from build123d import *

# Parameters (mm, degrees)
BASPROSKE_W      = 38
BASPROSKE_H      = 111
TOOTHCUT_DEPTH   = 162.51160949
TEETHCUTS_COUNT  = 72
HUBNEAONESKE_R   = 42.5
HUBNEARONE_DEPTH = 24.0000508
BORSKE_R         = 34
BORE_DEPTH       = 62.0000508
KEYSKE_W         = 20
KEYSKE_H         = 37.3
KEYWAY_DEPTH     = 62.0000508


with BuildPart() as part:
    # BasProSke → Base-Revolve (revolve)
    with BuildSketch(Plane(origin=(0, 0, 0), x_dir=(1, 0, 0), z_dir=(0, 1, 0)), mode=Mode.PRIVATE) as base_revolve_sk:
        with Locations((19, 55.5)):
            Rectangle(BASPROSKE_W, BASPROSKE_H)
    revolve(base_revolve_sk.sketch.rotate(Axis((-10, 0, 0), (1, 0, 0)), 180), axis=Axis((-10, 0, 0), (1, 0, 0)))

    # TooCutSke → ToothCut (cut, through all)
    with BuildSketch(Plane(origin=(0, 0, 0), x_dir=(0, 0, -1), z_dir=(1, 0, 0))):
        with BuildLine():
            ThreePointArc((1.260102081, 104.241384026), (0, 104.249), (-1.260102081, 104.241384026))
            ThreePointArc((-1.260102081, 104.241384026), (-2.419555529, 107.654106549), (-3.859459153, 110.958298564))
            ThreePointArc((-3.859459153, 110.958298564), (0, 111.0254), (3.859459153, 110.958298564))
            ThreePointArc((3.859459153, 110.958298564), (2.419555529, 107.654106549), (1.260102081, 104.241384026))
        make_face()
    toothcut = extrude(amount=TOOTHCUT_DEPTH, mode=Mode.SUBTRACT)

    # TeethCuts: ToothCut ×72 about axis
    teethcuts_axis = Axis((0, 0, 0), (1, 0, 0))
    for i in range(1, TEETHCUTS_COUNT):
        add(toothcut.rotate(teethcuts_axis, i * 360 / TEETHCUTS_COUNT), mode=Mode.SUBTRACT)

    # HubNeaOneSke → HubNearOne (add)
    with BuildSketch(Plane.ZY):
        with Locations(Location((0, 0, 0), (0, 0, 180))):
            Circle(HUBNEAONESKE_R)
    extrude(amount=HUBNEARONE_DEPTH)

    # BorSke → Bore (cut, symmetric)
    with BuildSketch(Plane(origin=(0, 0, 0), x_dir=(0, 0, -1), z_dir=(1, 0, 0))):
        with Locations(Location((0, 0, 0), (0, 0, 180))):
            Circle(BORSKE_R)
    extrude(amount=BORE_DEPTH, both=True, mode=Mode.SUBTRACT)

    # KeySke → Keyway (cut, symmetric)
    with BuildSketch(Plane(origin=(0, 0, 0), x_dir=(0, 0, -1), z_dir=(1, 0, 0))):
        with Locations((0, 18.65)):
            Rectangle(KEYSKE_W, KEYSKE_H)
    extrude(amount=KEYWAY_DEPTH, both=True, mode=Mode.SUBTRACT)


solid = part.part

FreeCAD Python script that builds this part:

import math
import FreeCAD as App
import Part
import Sketcher
from FreeCAD import Vector

doc = App.newDocument("Part")
body = doc.addObject("PartDesign::Body", "Body")

# Sketch on XZ plane
sketch1 = body.newObject("Sketcher::SketchObject", "Sketch")
sketch1.AttachmentSupport = (doc.getObject("XZ_Plane"), [""])
sketch1.MapMode = "FlatFace"
sketch1.addGeometry(Part.LineSegment(Vector(0, -111, 0), Vector(0, 0, 0)), False)
sketch1.addGeometry(Part.LineSegment(Vector(0, 0, 0), Vector(38, 0, 0)), False)
sketch1.addGeometry(Part.LineSegment(Vector(38, 0, 0), Vector(38, -111, 0)), False)
sketch1.addGeometry(Part.LineSegment(Vector(38, -111, 0), Vector(0, -111, 0)), False)
sketch1.addConstraint(Sketcher.Constraint("Coincident", 0, 2, 1, 1))
sketch1.addConstraint(Sketcher.Constraint("Coincident", 1, 2, 2, 1))
sketch1.addConstraint(Sketcher.Constraint("Coincident", 2, 2, 3, 1))
sketch1.addConstraint(Sketcher.Constraint("Coincident", 3, 2, 0, 1))
sketch1.addConstraint(Sketcher.Constraint("Vertical", 0))
sketch1.addConstraint(Sketcher.Constraint("Horizontal", 1))
sketch1.addConstraint(Sketcher.Constraint("Vertical", 2))
sketch1.addConstraint(Sketcher.Constraint("Horizontal", 3))
sketch1.addConstraint(Sketcher.Constraint("Coincident", 0, 2, -1, 1))
sketch1.addConstraint(Sketcher.Constraint("DistanceX", 1, 1, 1, 2, 38.0))
sketch1.addConstraint(Sketcher.Constraint("DistanceY", 0, 1, 0, 2, 111.0))
revolution = body.newObject("PartDesign::Revolution", "Revolution")
revolution.Profile = sketch1
revolution.ReferenceAxis = (sketch1, ["H_Axis"])
revolution.Angle = 360

# Sketch on YZ plane
sketch2 = body.newObject("Sketcher::SketchObject", "Sketch001")
sketch2.AttachmentSupport = (doc.getObject("YZ_Plane"), [""])
sketch2.MapMode = "FlatFace"
sketch2.addGeometry(Part.ArcOfCircle(Part.Circle(Vector(0.000006, 0, 0), Vector(0, 0, 1), 104.248994), math.radians(-0.692575), math.radians(0.692575)), False)
sketch2.addGeometry(Part.ArcOfCircle(Part.Circle(Vector(92.063016, -42.707989, 0), Vector(0, 0, 1), 43.2), math.radians(64.062477), math.radians(73.625966)), False)
sketch2.addGeometry(Part.ArcOfCircle(Part.Circle(Vector(0, 0, 0), Vector(0, 0, 1), 111.0254), math.radians(-1.992114), math.radians(1.992114)), False)
sketch2.addGeometry(Part.ArcOfCircle(Part.Circle(Vector(92.063016, 42.707989, 0), Vector(0, 0, 1), 43.2), math.radians(-73.625966), math.radians(-64.062477)), False)
sketch2.addConstraint(Sketcher.Constraint("Coincident", 0, 1, 1, 2))
sketch2.addConstraint(Sketcher.Constraint("Coincident", 1, 1, 2, 1))
sketch2.addConstraint(Sketcher.Constraint("Coincident", 2, 2, 3, 2))
sketch2.addConstraint(Sketcher.Constraint("Coincident", 3, 1, 0, 2))
sketch2.addConstraint(Sketcher.Constraint("Coincident", 0, 3, -1, 1))
sketch2.addConstraint(Sketcher.Constraint("Coincident", 2, 3, -1, 1))
sketch2.addConstraint(Sketcher.Constraint("Equal", 1, 3))
sketch2.addConstraint(Sketcher.Constraint("Symmetric", 1, 3, 3, 3, -1))
sketch2.addConstraint(Sketcher.Constraint("Radius", 1, 43.2))
sketch2.addConstraint(Sketcher.Constraint("Radius", 2, 111.0254))
sketch2.addConstraint(Sketcher.Constraint("Radius", 0, 104.248994))
sketch2.addConstraint(Sketcher.Constraint("DistanceX", -1, 1, 2, 2, 110.958299))
sketch2.addConstraint(Sketcher.Constraint("DistanceY", 1, 3, -1, 1, 42.707989))
pocket1 = body.newObject("PartDesign::Pocket", "Pocket")
pocket1.Profile = sketch2
pocket1.Type = "ThroughAll"
pocket1.Reversed = True
doc.recompute()

polarpattern = body.newObject("PartDesign::PolarPattern", "PolarPattern")
polarpattern.Originals = [pocket1]
polarpattern.Axis = (doc.getObject("X_Axis"), [""])
polarpattern.Angle = 360
polarpattern.Occurrences = 72
body.Tip = polarpattern

# Sketch on YZ plane
sketch3 = body.newObject("Sketcher::SketchObject", "Sketch002")
sketch3.AttachmentSupport = (doc.getObject("YZ_Plane"), [""])
sketch3.MapMode = "FlatFace"
sketch3.addGeometry(Part.Circle(Vector(0, 0, 0), Vector(0, 0, 1), 42), False)
sketch3.addConstraint(Sketcher.Constraint("Coincident", 0, 3, -1, 1))
sketch3.addConstraint(Sketcher.Constraint("Diameter", 0, 85.0))
pad1 = body.newObject("PartDesign::Pad", "Pad")
pad1.Profile = sketch3
pad1.Length = 24.000051
pad1.Reversed = True

# Sketch on YZ plane
sketch4 = body.newObject("Sketcher::SketchObject", "Sketch003")
sketch4.AttachmentSupport = (doc.getObject("YZ_Plane"), [""])
sketch4.MapMode = "FlatFace"
sketch4.addGeometry(Part.Circle(Vector(0, 0, 0), Vector(0, 0, 1), 34), False)
sketch4.addConstraint(Sketcher.Constraint("Coincident", 0, 3, -1, 1))
sketch4.addConstraint(Sketcher.Constraint("Diameter", 0, 68.0))
pocket2 = body.newObject("PartDesign::Pocket", "Pocket001")
pocket2.Profile = sketch4
pocket2.Length = 124.000102
pocket2.Midplane = True

# Sketch on YZ plane
sketch5 = body.newObject("Sketcher::SketchObject", "Sketch004")
sketch5.AttachmentSupport = (doc.getObject("YZ_Plane"), [""])
sketch5.MapMode = "FlatFace"
sketch5.addGeometry(Part.LineSegment(Vector(37, 10, 0), Vector(0, 10, 0)), False)
sketch5.addGeometry(Part.LineSegment(Vector(0, 10, 0), Vector(0, -10, 0)), False)
sketch5.addGeometry(Part.LineSegment(Vector(0, -10, 0), Vector(37, -10, 0)), False)
sketch5.addGeometry(Part.LineSegment(Vector(37, -10, 0), Vector(37, 10, 0)), False)
sketch5.addConstraint(Sketcher.Constraint("Coincident", 0, 2, 1, 1))
sketch5.addConstraint(Sketcher.Constraint("Coincident", 1, 2, 2, 1))
sketch5.addConstraint(Sketcher.Constraint("Coincident", 2, 2, 3, 1))
sketch5.addConstraint(Sketcher.Constraint("Coincident", 3, 2, 0, 1))
sketch5.addConstraint(Sketcher.Constraint("Horizontal", 0))
sketch5.addConstraint(Sketcher.Constraint("Vertical", 1))
sketch5.addConstraint(Sketcher.Constraint("Horizontal", 2))
sketch5.addConstraint(Sketcher.Constraint("Vertical", 3))
sketch5.addConstraint(Sketcher.Constraint("Symmetric", 0, 2, 1, 2, -1, 1))
sketch5.addConstraint(Sketcher.Constraint("DistanceY", 1, 2, 1, 1, 20.0))
sketch5.addConstraint(Sketcher.Constraint("DistanceX", 0, 2, 0, 1, 37.3))
pocket3 = body.newObject("PartDesign::Pocket", "Pocket002")
pocket3.Profile = sketch5
pocket3.Length = 124.000102
pocket3.Midplane = True

doc.recompute()
